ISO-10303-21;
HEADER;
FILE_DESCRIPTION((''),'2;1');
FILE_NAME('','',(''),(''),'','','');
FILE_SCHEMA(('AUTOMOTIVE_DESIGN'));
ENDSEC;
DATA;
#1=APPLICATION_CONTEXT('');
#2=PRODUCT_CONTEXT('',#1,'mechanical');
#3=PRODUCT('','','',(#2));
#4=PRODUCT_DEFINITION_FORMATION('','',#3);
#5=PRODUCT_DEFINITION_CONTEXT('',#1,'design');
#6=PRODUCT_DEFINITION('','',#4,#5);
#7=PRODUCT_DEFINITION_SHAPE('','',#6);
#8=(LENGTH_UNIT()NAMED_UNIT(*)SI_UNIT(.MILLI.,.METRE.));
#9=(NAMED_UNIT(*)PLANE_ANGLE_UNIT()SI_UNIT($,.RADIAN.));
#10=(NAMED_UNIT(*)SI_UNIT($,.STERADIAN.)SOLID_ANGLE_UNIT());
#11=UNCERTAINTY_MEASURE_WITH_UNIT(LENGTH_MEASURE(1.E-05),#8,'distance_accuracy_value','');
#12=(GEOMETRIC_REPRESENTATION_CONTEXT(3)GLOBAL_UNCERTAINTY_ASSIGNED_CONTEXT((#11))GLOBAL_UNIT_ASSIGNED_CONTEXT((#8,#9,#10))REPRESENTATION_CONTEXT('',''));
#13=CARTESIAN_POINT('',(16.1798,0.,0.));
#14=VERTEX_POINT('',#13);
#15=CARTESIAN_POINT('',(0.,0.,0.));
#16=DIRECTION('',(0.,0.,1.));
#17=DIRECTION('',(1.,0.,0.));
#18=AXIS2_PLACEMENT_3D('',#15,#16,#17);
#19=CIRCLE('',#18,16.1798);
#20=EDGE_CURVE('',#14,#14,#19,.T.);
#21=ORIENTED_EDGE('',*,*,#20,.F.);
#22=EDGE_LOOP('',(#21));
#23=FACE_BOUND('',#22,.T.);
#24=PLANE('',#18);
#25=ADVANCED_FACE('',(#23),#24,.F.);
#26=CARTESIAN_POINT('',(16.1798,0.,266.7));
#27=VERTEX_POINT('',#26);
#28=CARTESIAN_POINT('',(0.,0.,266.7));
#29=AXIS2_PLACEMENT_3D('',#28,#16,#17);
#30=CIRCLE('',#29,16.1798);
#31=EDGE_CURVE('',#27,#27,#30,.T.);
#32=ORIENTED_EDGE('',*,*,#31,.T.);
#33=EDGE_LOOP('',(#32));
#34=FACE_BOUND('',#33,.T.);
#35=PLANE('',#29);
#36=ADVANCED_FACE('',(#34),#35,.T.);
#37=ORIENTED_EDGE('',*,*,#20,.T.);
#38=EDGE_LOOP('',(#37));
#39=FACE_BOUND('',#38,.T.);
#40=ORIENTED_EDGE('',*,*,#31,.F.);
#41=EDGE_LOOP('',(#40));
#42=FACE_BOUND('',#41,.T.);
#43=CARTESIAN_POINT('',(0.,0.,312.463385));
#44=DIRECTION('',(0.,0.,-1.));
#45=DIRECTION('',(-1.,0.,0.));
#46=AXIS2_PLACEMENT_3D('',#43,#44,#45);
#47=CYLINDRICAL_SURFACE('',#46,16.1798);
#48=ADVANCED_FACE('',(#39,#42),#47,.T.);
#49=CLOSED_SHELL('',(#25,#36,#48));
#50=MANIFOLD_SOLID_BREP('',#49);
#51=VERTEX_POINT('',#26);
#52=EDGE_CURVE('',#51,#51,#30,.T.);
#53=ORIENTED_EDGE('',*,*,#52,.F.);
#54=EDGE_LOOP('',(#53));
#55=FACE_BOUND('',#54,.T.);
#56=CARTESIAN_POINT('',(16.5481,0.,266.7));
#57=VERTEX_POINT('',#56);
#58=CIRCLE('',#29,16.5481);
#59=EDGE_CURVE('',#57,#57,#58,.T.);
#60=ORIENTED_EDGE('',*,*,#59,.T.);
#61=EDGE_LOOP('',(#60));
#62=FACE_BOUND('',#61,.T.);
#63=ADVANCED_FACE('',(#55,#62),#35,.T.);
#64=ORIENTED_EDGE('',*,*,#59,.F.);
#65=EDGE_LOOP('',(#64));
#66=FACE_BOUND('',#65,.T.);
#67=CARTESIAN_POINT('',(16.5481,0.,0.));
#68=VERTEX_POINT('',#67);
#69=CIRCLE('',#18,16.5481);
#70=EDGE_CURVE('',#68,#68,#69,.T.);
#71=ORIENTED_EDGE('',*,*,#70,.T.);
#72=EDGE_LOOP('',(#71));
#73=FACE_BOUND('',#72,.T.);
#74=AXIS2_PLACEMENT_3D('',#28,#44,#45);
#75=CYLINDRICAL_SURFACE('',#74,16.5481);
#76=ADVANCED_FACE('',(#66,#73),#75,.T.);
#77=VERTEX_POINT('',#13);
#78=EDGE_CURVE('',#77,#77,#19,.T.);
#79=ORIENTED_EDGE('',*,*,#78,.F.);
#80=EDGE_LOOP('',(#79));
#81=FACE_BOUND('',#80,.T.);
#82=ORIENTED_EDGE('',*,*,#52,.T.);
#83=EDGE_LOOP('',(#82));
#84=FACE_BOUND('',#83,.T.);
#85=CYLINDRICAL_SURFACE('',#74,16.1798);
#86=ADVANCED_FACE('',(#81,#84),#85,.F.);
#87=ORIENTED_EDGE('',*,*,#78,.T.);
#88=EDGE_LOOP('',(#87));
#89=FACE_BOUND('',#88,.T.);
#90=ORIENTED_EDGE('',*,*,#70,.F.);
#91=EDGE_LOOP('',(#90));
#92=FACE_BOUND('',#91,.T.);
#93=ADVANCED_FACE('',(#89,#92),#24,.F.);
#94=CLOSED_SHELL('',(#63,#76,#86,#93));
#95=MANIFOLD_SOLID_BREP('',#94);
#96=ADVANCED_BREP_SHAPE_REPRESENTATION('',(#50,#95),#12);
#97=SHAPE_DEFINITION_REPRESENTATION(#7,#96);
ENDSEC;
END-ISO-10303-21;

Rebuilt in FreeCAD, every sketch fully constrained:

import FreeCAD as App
import Part
import Sketcher

V = App.Vector
Q = App.Units.Quantity

doc = App.newDocument("Part")
body = doc.addObject("PartDesign::Body", "Body")

# Sketch on XY plane
sketch1 = body.newObject("Sketcher::SketchObject", "Sketch")
sketch1.AttachmentSupport = (doc.getObject("XY_Plane"), [""])
sketch1.MapMode = "FlatFace"
sketch1.addGeometry(Part.Circle(V(0, 0, 0), V(0, 0, 1), 17), False)
sketch1.addGeometry(Part.Circle(V(0, 0, 0), V(0, 0, 1), 16), False)
sketch1.addConstraint(Sketcher.Constraint("Coincident", 0, 3, -1, 1))
sketch1.addConstraint(Sketcher.Constraint("Coincident", 1, 3, -1, 1))
sketch1.addConstraint(Sketcher.Constraint("Diameter", 0, Q("1.303 in")))
sketch1.addConstraint(Sketcher.Constraint("Diameter", 1, Q("1.274 in")))
pad1 = body.newObject("PartDesign::Pad", "Pad")
pad1.Profile = sketch1
pad1.Length = Q("10.5 in")
body2 = doc.addObject("PartDesign::Body", "Body001")

# Sketch on XY plane
sketch2 = body2.newObject("Sketcher::SketchObject", "Sketch001")
sketch2.AttachmentSupport = (doc.getObject("XY_Plane001"), [""])
sketch2.MapMode = "FlatFace"
sketch2.addGeometry(Part.Circle(V(0, 0, 0), V(0, 0, 1), 16), False)
sketch2.addConstraint(Sketcher.Constraint("Coincident", 0, 3, -1, 1))
sketch2.addConstraint(Sketcher.Constraint("Diameter", 0, Q("1.274 in")))
pad2 = body2.newObject("PartDesign::Pad", "Pad001")
pad2.Profile = sketch2
pad2.Length = Q("10.5 in")

doc.recompute()
